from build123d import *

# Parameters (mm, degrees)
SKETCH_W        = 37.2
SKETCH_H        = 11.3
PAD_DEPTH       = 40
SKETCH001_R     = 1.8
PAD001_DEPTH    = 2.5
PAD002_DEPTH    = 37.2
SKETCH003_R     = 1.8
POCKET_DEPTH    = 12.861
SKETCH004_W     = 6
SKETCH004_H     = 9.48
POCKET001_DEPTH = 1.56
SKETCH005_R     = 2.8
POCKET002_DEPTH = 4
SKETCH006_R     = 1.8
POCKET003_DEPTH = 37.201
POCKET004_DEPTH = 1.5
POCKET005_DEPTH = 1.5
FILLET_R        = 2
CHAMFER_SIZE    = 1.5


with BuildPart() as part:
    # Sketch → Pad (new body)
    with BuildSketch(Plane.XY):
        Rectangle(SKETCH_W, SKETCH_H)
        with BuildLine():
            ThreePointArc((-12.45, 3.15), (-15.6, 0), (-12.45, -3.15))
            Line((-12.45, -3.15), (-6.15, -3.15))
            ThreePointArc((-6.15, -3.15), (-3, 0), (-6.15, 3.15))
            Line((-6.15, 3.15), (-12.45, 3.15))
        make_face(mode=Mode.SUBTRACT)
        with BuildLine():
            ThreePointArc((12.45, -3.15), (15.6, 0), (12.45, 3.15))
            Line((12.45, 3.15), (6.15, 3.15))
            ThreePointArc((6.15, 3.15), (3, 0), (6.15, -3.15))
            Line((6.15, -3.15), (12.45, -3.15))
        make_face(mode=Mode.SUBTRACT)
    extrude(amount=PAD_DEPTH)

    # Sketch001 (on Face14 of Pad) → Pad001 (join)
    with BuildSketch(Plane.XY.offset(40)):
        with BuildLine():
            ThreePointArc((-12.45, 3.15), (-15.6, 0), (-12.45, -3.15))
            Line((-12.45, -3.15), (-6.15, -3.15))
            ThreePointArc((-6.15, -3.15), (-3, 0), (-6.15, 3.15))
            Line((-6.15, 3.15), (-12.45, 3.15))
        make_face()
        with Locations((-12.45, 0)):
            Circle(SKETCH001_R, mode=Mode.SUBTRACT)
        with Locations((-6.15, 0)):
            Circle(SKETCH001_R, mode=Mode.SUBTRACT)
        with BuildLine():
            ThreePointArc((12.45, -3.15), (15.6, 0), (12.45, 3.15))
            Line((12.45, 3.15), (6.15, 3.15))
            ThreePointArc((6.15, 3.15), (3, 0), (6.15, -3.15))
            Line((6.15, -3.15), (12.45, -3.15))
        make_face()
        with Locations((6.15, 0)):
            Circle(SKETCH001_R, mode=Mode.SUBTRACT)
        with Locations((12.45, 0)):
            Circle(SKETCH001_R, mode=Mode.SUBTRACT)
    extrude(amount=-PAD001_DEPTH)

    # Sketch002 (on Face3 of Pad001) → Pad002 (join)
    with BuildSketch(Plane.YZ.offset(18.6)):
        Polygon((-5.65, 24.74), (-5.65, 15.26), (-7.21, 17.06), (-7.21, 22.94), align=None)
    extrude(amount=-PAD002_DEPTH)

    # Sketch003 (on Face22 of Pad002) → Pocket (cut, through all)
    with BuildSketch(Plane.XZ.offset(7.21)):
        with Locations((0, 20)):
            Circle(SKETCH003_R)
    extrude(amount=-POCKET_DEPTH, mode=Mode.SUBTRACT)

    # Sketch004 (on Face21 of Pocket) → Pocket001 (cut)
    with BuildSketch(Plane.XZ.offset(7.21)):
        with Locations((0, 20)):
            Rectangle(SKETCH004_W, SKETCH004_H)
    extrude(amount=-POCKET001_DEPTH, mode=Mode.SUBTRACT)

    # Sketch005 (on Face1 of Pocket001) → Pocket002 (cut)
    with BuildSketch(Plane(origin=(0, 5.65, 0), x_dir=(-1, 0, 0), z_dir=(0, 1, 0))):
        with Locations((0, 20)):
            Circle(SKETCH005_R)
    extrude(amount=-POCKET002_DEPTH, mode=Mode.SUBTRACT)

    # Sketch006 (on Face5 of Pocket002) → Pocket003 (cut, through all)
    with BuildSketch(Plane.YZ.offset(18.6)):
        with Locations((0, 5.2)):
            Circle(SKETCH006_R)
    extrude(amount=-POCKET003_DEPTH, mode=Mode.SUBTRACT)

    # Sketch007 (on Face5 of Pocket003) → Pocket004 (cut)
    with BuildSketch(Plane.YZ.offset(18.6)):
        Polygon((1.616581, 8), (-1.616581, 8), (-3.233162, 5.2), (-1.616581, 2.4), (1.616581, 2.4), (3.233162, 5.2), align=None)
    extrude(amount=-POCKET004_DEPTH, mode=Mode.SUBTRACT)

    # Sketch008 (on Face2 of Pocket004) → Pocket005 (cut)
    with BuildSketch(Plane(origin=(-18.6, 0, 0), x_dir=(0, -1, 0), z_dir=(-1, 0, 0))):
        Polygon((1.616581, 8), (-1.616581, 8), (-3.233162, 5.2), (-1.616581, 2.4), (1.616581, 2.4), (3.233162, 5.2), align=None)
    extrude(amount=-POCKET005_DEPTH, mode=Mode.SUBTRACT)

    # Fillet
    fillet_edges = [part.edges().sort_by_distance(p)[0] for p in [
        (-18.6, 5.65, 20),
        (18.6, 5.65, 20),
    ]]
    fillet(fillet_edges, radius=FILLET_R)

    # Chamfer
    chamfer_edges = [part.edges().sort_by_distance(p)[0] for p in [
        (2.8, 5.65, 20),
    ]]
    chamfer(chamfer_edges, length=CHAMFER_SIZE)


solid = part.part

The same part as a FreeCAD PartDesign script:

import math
import FreeCAD as App
import Part
import Sketcher

V = App.Vector
Q = App.Units.Quantity


def edges_at(feature, points):
    """Names of the edges that pass closest to the given points."""
    edges = feature.Shape.Edges
    near = lambda p: min(range(len(edges)), key=lambda i: edges[i].distToShape(Part.Vertex(*p))[0])
    return sorted({f"Edge{near(p) + 1}" for p in points})

doc = App.newDocument("Part")
body = doc.addObject("PartDesign::Body", "Body")

sketch1 = body.newObject("Sketcher::SketchObject", "Sketch")
sketch1.AttachmentSupport = (doc.getObject("XY_Plane"), [""])
sketch1.MapMode = "FlatFace"
sketch1.addGeometry([
    Part.LineSegment(V(-18.6, 5.65, 0), V(-18.6, -5.65, 0)),
    Part.LineSegment(V(-18.6, -5.65, 0), V(18.6, -5.65, 0)),
    Part.LineSegment(V(18.6, -5.65, 0), V(18.6, 5.65, 0)),
    Part.LineSegment(V(18.6, 5.65, 0), V(-18.6, 5.65, 0)),
    Part.ArcOfCircle(Part.Circle(V(-12.45, 0, 0), V(0, 0, 1), 3.15), math.radians(90), math.radians(270)),
    Part.LineSegment(V(-12.45, 3.15, 0), V(-6.15, 3.15, 0)),
    Part.ArcOfCircle(Part.Circle(V(-6.15, 0, 0), V(0, 0, 1), 3.15), math.radians(-90), math.radians(90)),
    Part.LineSegment(V(-6.15, -3.15, 0), V(-12.45, -3.15, 0)),
    Part.ArcOfCircle(Part.Circle(V(12.45, 0, 0), V(0, 0, 1), 3.15), math.radians(-90), math.radians(90)),
    Part.LineSegment(V(12.45, -3.15, 0), V(6.15, -3.15, 0)),
    Part.ArcOfCircle(Part.Circle(V(6.15, 0, 0), V(0, 0, 1), 3.15), math.radians(90), math.radians(270)),
    Part.LineSegment(V(6.15, 3.15, 0), V(12.45, 3.15, 0)),
], False)
sketch1.addConstraint([
    Sketcher.Constraint("Coincident", 0, 2, 1, 1),
    Sketcher.Constraint("Coincident", 1, 2, 2, 1),
    Sketcher.Constraint("Coincident", 2, 2, 3, 1),
    Sketcher.Constraint("Coincident", 3, 2, 0, 1),
    Sketcher.Constraint("Tangent", 4, 1, 5, 1),
    Sketcher.Constraint("Tangent", 5, 2, 6, 2),
    Sketcher.Constraint("Tangent", 6, 1, 7, 1),
    Sketcher.Constraint("Tangent", 7, 2, 4, 2),
    Sketcher.Constraint("Tangent", 8, 1, 9, 1),
    Sketcher.Constraint("Tangent", 9, 2, 10, 2),
    Sketcher.Constraint("Tangent", 10, 1, 11, 1),
    Sketcher.Constraint("Tangent", 11, 2, 8, 2),
    Sketcher.Constraint("Vertical", 0),
    Sketcher.Constraint("Horizontal", 1),
    Sketcher.Constraint("Vertical", 2),
    Sketcher.Constraint("Horizontal", 3),
    Sketcher.Constraint("Horizontal", 5),
    Sketcher.Constraint("Horizontal", 7),
    Sketcher.Constraint("Horizontal", 9),
    Sketcher.Constraint("Horizontal", 11),
    Sketcher.Constraint("Equal", 6, 8),
    Sketcher.Constraint("Symmetric", 4, 3, 8, 3, -1, 1),
    Sketcher.Constraint("Symmetric", 0, 2, 2, 2, -1, 1),
    Sketcher.Constraint("Symmetric", 6, 3, 10, 3, -2),
    Sketcher.Constraint("Radius", 4, Q("3.15 mm")),
    Sketcher.Constraint("DistanceX", 1, 1, 1, 2, Q("37.2 mm")),
    Sketcher.Constraint("DistanceX", 5, 1, 5, 2, Q("6.3 mm")),
    Sketcher.Constraint("DistanceY", 0, 2, 0, 1, Q("11.3 mm")),
    Sketcher.Constraint("DistanceX", 6, 3, 8, 3, Q("18.6 mm")),
])
pad1 = body.newObject("PartDesign::Pad", "Pad")
pad1.Profile = sketch1
pad1.Length = 40

sketch2 = body.newObject("Sketcher::SketchObject", "Sketch001")
sketch2.AttachmentSupport = (doc.getObject("XY_Plane"), [""])
sketch2.MapMode = "FlatFace"
sketch2.AttachmentOffset = App.Placement(V(0, 0, 40), App.Rotation())
sketch2.addGeometry([
    Part.ArcOfCircle(Part.Circle(V(-12.45, 0, 0), V(0, 0, 1), 3.15), math.radians(90), math.radians(270)),
    Part.LineSegment(V(-12.45, -3.15, 0), V(-6.15, -3.15, 0)),
    Part.ArcOfCircle(Part.Circle(V(-6.15, 0, 0), V(0, 0, 1), 3.15), math.radians(-90), math.radians(90)),
    Part.LineSegment(V(-6.15, 3.15, 0), V(-12.45, 3.15, 0)),
    Part.Circle(V(-12.45, 0, 0), V(0, 0, 1), 1.8),
    Part.Circle(V(-6.15, 0, 0), V(0, 0, 1), 1.8),
    Part.ArcOfCircle(Part.Circle(V(12.45, 0, 0), V(0, 0, 1), 3.15), math.radians(-90), math.radians(90)),
    Part.LineSegment(V(12.45, 3.15, 0), V(6.15, 3.15, 0)),
    Part.ArcOfCircle(Part.Circle(V(6.15, 0, 0), V(0, 0, 1), 3.15), math.radians(90), math.radians(270)),
    Part.LineSegment(V(6.15, -3.15, 0), V(12.45, -3.15, 0)),
    Part.Circle(V(6.15, 0, 0), V(0, 0, 1), 1.8),
    Part.Circle(V(12.45, 0, 0), V(0, 0, 1), 1.8),
], False)
sketch2.addConstraint([
    Sketcher.Constraint("Tangent", 0, 2, 1, 1),
    Sketcher.Constraint("Tangent", 1, 2, 2, 1),
    Sketcher.Constraint("Tangent", 2, 2, 3, 1),
    Sketcher.Constraint("Tangent", 3, 2, 0, 1),
    Sketcher.Constraint("Tangent", 6, 2, 7, 1),
    Sketcher.Constraint("Tangent", 7, 2, 8, 1),
    Sketcher.Constraint("Tangent", 8, 2, 9, 1),
    Sketcher.Constraint("Tangent", 9, 2, 6, 1),
    Sketcher.Constraint("Horizontal", 1),
    Sketcher.Constraint("Horizontal", 3),
    Sketcher.Constraint("Horizontal", 7),
    Sketcher.Constraint("Horizontal", 9),
    Sketcher.Constraint("Coincident", 4, 3, 0, 3),
    Sketcher.Constraint("Coincident", 5, 3, 2, 3),
    Sketcher.Constraint("Coincident", 10, 3, 8, 3),
    Sketcher.Constraint("Coincident", 11, 3, 6, 3),
    Sketcher.Constraint("Equal", 4, 5),
    Sketcher.Constraint("Equal", 2, 6),
    Sketcher.Constraint("Equal", 5, 10),
    Sketcher.Constraint("Equal", 10, 11),
    Sketcher.Constraint("Symmetric", 0, 3, 6, 3, -1, 1),
    Sketcher.Constraint("Symmetric", 2, 3, 8, 3, -2),
    Sketcher.Constraint("Diameter", 4, Q("3.6 mm")),
    Sketcher.Constraint("Radius", 0, Q("3.15 mm")),
    Sketcher.Constraint("DistanceX", 1, 1, 1, 2, Q("6.3 mm")),
    Sketcher.Constraint("DistanceX", 2, 3, 6, 3, Q("18.6 mm")),
])
pad2 = body.newObject("PartDesign::Pad", "Pad001")
pad2.Profile = sketch2
pad2.Length = 2.5
pad2.Reversed = True

sketch3 = body.newObject("Sketcher::SketchObject", "Sketch002")
sketch3.AttachmentSupport = (doc.getObject("YZ_Plane"), [""])
sketch3.MapMode = "FlatFace"
sketch3.AttachmentOffset = App.Placement(V(0, 0, 18.6), App.Rotation())
sketch3.addGeometry([
    Part.LineSegment(V(-5.65, 15.26, 0), V(-5.65, 24.74, 0)),
    Part.LineSegment(V(-5.65, 24.74, 0), V(-7.21, 22.94, 0)),
    Part.LineSegment(V(-7.21, 22.94, 0), V(-7.21, 17.06, 0)),
    Part.LineSegment(V(-7.21, 17.06, 0), V(-5.65, 15.26, 0)),
], False)
sketch3.addConstraint([
    Sketcher.Constraint("Coincident", 0, 2, 1, 1),
    Sketcher.Constraint("Coincident", 1, 2, 2, 1),
    Sketcher.Constraint("Coincident", 2, 2, 3, 1),
    Sketcher.Constraint("Coincident", 3, 2, 0, 1),
    Sketcher.Constraint("Vertical", 0),
    Sketcher.Constraint("Vertical", 2),
    Sketcher.Constraint("Equal", 1, 3),
    Sketcher.Constraint("DistanceY", 0, 1, 0, 2, Q("9.48 mm")),
    Sketcher.Constraint("DistanceY", 2, 2, 2, 1, Q("5.88 mm")),
    Sketcher.Constraint("DistanceX", 0, 2, -1, 1, Q("5.65 mm")),
    Sketcher.Constraint("DistanceY", -1, 1, 0, 2, Q("24.74 mm")),
    Sketcher.Constraint("DistanceX", 1, 2, -1, 1, Q("7.21 mm")),
])
pad3 = body.newObject("PartDesign::Pad", "Pad002")
pad3.Profile = sketch3
pad3.Length = 37.2
pad3.Reversed = True

sketch4 = body.newObject("Sketcher::SketchObject", "Sketch003")
sketch4.AttachmentSupport = (doc.getObject("XZ_Plane"), [""])
sketch4.MapMode = "FlatFace"
sketch4.AttachmentOffset = App.Placement(V(0, 0, 7.21), App.Rotation())
sketch4.addGeometry(Part.Circle(V(0, 20, 0), V(0, 0, 1), 1.8), False)
sketch4.addConstraint([
    Sketcher.Constraint("PointOnObject", 0, 3, -2),
    Sketcher.Constraint("Diameter", 0, Q("3.6 mm")),
    Sketcher.Constraint("DistanceY", -1, 1, 0, 3, Q("20 mm")),
])
pocket1 = body.newObject("PartDesign::Pocket", "Pocket")
pocket1.Profile = sketch4
pocket1.Type = "ThroughAll"

sketch5 = body.newObject("Sketcher::SketchObject", "Sketch004")
sketch5.AttachmentSupport = (doc.getObject("XZ_Plane"), [""])
sketch5.MapMode = "FlatFace"
sketch5.AttachmentOffset = App.Placement(V(0, 0, 7.21), App.Rotation())
sketch5.addGeometry([
    Part.LineSegment(V(-3, 24.74, 0), V(-3, 15.26, 0)),
    Part.LineSegment(V(-3, 15.26, 0), V(3, 15.26, 0)),
    Part.LineSegment(V(3, 15.26, 0), V(3, 24.74, 0)),
    Part.LineSegment(V(3, 24.74, 0), V(-3, 24.74, 0)),
], False)
sketch5.addConstraint([
    Sketcher.Constraint("Coincident", 0, 2, 1, 1),
    Sketcher.Constraint("Coincident", 1, 2, 2, 1),
    Sketcher.Constraint("Coincident", 2, 2, 3, 1),
    Sketcher.Constraint("Coincident", 3, 2, 0, 1),
    Sketcher.Constraint("Vertical", 0),
    Sketcher.Constraint("Horizontal", 1),
    Sketcher.Constraint("Vertical", 2),
    Sketcher.Constraint("Horizontal", 3),
    Sketcher.Constraint("DistanceX", 1, 1, 1, 2, Q("6 mm")),
    Sketcher.Constraint("DistanceX", 0, 2, -1, 1, Q("3 mm")),
    Sketcher.Constraint("DistanceY", 0, 2, 0, 1, Q("9.48 mm")),
    Sketcher.Constraint("DistanceY", -1, 1, 0, 2, Q("15.26 mm")),
])
pocket2 = body.newObject("PartDesign::Pocket", "Pocket001")
pocket2.Profile = sketch5
pocket2.Length = 1.56

sketch6 = body.newObject("Sketcher::SketchObject", "Sketch005")
sketch6.AttachmentSupport = (doc.getObject("XZ_Plane"), [""])
sketch6.MapMode = "FlatFace"
sketch6.AttachmentOffset = App.Placement(V(0, 0, -5.65), App.Rotation())
sketch6.addGeometry(Part.Circle(V(0, 20, 0), V(0, 0, 1), 2.8), False)
sketch6.addConstraint([
    Sketcher.Constraint("PointOnObject", 0, 3, -2),
    Sketcher.Constraint("Diameter", 0, Q("5.6 mm")),
    Sketcher.Constraint("DistanceY", -1, 1, 0, 3, Q("20 mm")),
])
pocket3 = body.newObject("PartDesign::Pocket", "Pocket002")
pocket3.Profile = sketch6
pocket3.Length = 4
pocket3.Reversed = True

sketch7 = body.newObject("Sketcher::SketchObject", "Sketch006")
sketch7.AttachmentSupport = (doc.getObject("YZ_Plane"), [""])
sketch7.MapMode = "FlatFace"
sketch7.AttachmentOffset = App.Placement(V(0, 0, 18.6), App.Rotation())
sketch7.addGeometry(Part.Circle(V(0, 5.2, 0), V(0, 0, 1), 1.8), False)
sketch7.addConstraint([
    Sketcher.Constraint("PointOnObject", 0, 3, -2),
    Sketcher.Constraint("Diameter", 0, Q("3.6 mm")),
    Sketcher.Constraint("DistanceY", -1, 1, 0, 3, Q("5.2 mm")),
])
pocket4 = body.newObject("PartDesign::Pocket", "Pocket003")
pocket4.Profile = sketch7
pocket4.Type = "ThroughAll"

sketch8 = body.newObject("Sketcher::SketchObject", "Sketch007")
sketch8.AttachmentSupport = (doc.getObject("YZ_Plane"), [""])
sketch8.MapMode = "FlatFace"
sketch8.AttachmentOffset = App.Placement(V(0, 0, 18.6), App.Rotation())
sketch8.addGeometry([
    Part.LineSegment(V(1.616581, 8, 0), V(-1.616581, 8, 0)),
    Part.LineSegment(V(-1.616581, 8, 0), V(-3.233162, 5.2, 0)),
    Part.LineSegment(V(-3.233162, 5.2, 0), V(-1.616581, 2.4, 0)),
    Part.LineSegment(V(-1.616581, 2.4, 0), V(1.616581, 2.4, 0)),
    Part.LineSegment(V(1.616581, 2.4, 0), V(3.233162, 5.2, 0)),
    Part.LineSegment(V(3.233162, 5.2, 0), V(1.616581, 8, 0)),
], False)
sketch8.addConstraint([
    Sketcher.Constraint("Coincident", 0, 2, 1, 1),
    Sketcher.Constraint("Coincident", 1, 2, 2, 1),
    Sketcher.Constraint("Coincident", 2, 2, 3, 1),
    Sketcher.Constraint("Coincident", 3, 2, 4, 1),
    Sketcher.Constraint("Coincident", 4, 2, 5, 1),
    Sketcher.Constraint("Coincident", 5, 2, 0, 1),
    Sketcher.Constraint("Horizontal", 0),
    Sketcher.Constraint("Horizontal", 3),
    Sketcher.Constraint("Symmetric", 1, 2, 4, 2, -2),
    Sketcher.Constraint("Parallel", 1, 4),
    Sketcher.Constraint("Parallel", 2, 5),
    Sketcher.Constraint("Vertical", 0, 2, 2, 2),
    Sketcher.Constraint("Vertical", 3, 2, 5, 2),
    Sketcher.Constraint("Angle", 1, Q("-120.000004 deg")),
    Sketcher.Constraint("DistanceY", -1, 1, 0, 2, Q("8 mm")),
    Sketcher.Constraint("DistanceY", -1, 1, 1, 2, Q("5.2 mm")),
    Sketcher.Constraint("DistanceX", 0, 2, 0, 1, Q("3.233162 mm")),
])
pocket5 = body.newObject("PartDesign::Pocket", "Pocket004")
pocket5.Profile = sketch8
pocket5.Length = 1.5

sketch9 = body.newObject("Sketcher::SketchObject", "Sketch008")
sketch9.AttachmentSupport = (doc.getObject("YZ_Plane"), [""])
sketch9.MapMode = "FlatFace"
sketch9.AttachmentOffset = App.Placement(V(0, 0, -18.6), App.Rotation())
sketch9.addGeometry([
    Part.LineSegment(V(-1.616581, 8, 0), V(1.616581, 8, 0)),
    Part.LineSegment(V(1.616581, 8, 0), V(3.233162, 5.2, 0)),
    Part.LineSegment(V(3.233162, 5.2, 0), V(1.616581, 2.4, 0)),
    Part.LineSegment(V(1.616581, 2.4, 0), V(-1.616581, 2.4, 0)),
    Part.LineSegment(V(-1.616581, 2.4, 0), V(-3.233162, 5.2, 0)),
    Part.LineSegment(V(-3.233162, 5.2, 0), V(-1.616581, 8, 0)),
], False)
sketch9.addConstraint([
    Sketcher.Constraint("Coincident", 0, 2, 1, 1),
    Sketcher.Constraint("Coincident", 1, 2, 2, 1),
    Sketcher.Constraint("Coincident", 2, 2, 3, 1),
    Sketcher.Constraint("Coincident", 3, 2, 4, 1),
    Sketcher.Constraint("Coincident", 4, 2, 5, 1),
    Sketcher.Constraint("Coincident", 5, 2, 0, 1),
    Sketcher.Constraint("Horizontal", 0),
    Sketcher.Constraint("Horizontal", 3),
    Sketcher.Constraint("Symmetric", 1, 2, 4, 2, -2),
    Sketcher.Constraint("Parallel", 1, 4),
    Sketcher.Constraint("Parallel", 2, 5),
    Sketcher.Constraint("Vertical", 0, 2, 2, 2),
    Sketcher.Constraint("Vertical", 3, 2, 5, 2),
    Sketcher.Constraint("Angle", 1, Q("-59.999996 deg")),
    Sketcher.Constraint("DistanceY", -1, 1, 0, 2, Q("8 mm")),
    Sketcher.Constraint("DistanceY", -1, 1, 1, 2, Q("5.2 mm")),
    Sketcher.Constraint("DistanceX", 0, 1, 0, 2, Q("3.233162 mm")),
])
pocket6 = body.newObject("PartDesign::Pocket", "Pocket005")
pocket6.Profile = sketch9
pocket6.Length = 1.5
pocket6.Reversed = True
doc.recompute()

fillet = body.newObject("PartDesign::Fillet", "Fillet")
fillet.Base = (pocket6, edges_at(pocket6, [(-18.6, 5.65, 20), (18.6, 5.65, 20)]))
fillet.Radius = 2
doc.recompute()

chamfer = body.newObject("PartDesign::Chamfer", "Chamfer")
chamfer.Base = (fillet, edges_at(fillet, [(2.8, 5.65, 20)]))
chamfer.Size = 1.5

doc.recompute()
